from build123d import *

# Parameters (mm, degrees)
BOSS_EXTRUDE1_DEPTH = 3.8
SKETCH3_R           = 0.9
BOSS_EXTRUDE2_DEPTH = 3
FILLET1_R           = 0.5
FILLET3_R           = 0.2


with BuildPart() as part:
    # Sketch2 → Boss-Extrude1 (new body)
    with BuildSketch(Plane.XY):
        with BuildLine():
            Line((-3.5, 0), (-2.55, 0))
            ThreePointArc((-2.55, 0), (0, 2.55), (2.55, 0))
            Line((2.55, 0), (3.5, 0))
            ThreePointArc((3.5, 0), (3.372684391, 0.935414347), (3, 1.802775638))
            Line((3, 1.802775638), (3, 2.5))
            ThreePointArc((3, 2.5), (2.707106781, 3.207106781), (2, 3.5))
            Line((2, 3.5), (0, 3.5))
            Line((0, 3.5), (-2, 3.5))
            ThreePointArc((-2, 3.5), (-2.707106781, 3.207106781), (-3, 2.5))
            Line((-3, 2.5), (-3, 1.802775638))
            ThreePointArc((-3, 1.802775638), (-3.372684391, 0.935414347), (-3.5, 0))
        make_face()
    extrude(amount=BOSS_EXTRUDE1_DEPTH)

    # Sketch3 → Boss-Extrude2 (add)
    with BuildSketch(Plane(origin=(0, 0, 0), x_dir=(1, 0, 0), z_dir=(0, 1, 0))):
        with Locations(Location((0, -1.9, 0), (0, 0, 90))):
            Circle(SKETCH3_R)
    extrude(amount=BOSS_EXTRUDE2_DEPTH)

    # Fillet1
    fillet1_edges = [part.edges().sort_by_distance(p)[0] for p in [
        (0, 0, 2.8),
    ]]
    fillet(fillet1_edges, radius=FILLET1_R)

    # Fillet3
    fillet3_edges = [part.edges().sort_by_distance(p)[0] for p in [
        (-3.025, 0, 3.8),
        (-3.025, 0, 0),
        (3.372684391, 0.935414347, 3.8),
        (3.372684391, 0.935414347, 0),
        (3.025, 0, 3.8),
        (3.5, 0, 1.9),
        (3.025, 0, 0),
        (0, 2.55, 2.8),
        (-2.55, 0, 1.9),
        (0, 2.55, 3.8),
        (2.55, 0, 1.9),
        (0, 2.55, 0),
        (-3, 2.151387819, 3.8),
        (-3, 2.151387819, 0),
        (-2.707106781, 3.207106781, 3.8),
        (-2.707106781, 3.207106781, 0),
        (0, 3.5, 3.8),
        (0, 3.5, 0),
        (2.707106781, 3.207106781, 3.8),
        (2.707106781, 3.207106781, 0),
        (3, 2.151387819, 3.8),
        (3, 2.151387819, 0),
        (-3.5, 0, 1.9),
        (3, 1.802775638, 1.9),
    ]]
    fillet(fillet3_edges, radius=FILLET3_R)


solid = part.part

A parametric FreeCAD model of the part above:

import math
import FreeCAD as App
import Part
import Sketcher
Q = App.Units.Quantity


def edges_at(feature, points):
    """Names of the edges that pass closest to the given points."""
    edges = feature.Shape.Edges
    near = lambda p: min(range(len(edges)), key=lambda i: edges[i].distToShape(Part.Vertex(*p))[0])
    return sorted({f"Edge{near(p) + 1}" for p in points})

doc = App.newDocument("Part")
body = doc.addObject("PartDesign::Body", "Body")

# Sketch on XY plane
sketch1 = body.newObject("Sketcher::SketchObject", "Sketch")
sketch1.AttachmentSupport = (doc.getObject("XY_Plane"), [""])
sketch1.MapMode = "FlatFace"
sketch1.addGeometry([
    Part.LineSegment(App.Vector(-3.5, 0, 0), App.Vector(-2.55, 0, 0)),  # 0
    Part.ArcOfCircle(Part.Circle(App.Vector(0, 0, 0), App.Vector(0, 0, 1), 2.55), math.radians(0), math.radians(180)),  # 1
    Part.LineSegment(App.Vector(2.55, 0, 0), App.Vector(3.5, 0, 0)),  # 2
    Part.ArcOfCircle(Part.Circle(App.Vector(0, 0, 0), App.Vector(0, 0, 1), 3.5), math.radians(0), math.radians(31.002719)),  # 3
    Part.LineSegment(App.Vector(3, 1.802776, 0), App.Vector(3, 2.5, 0)),  # 4
    Part.ArcOfCircle(Part.Circle(App.Vector(2, 2.5, 0), App.Vector(0, 0, 1), 1), math.radians(0), math.radians(90)),  # 5
    Part.LineSegment(App.Vector(2, 3.5, 0), App.Vector(-2, 3.5, 0)),  # 6
    Part.ArcOfCircle(Part.Circle(App.Vector(-2, 2.5, 0), App.Vector(0, 0, 1), 1), math.radians(90), math.radians(180)),  # 7
    Part.LineSegment(App.Vector(-3, 2.5, 0), App.Vector(-3, 1.802776, 0)),  # 8
    Part.ArcOfCircle(Part.Circle(App.Vector(0, 0, 0), App.Vector(0, 0, 1), 3.5), math.radians(148.997281), math.radians(180)),  # 9
], False)
sketch1.addConstraint([
    Sketcher.Constraint("Coincident", 0, 2, 1, 2),
    Sketcher.Constraint("Coincident", 1, 1, 2, 1),
    Sketcher.Constraint("Coincident", 2, 2, 3, 1),
    Sketcher.Constraint("Coincident", 3, 2, 4, 1),
    Sketcher.Constraint("Tangent", 4, 2, 5, 1),
    Sketcher.Constraint("Tangent", 5, 2, 6, 1),
    Sketcher.Constraint("Tangent", 6, 2, 7, 1),
    Sketcher.Constraint("Tangent", 7, 2, 8, 1),
    Sketcher.Constraint("Coincident", 8, 2, 9, 1),
    Sketcher.Constraint("Coincident", 9, 2, 0, 1),
    Sketcher.Constraint("Horizontal", 0),
    Sketcher.Constraint("Horizontal", 2),
    Sketcher.Constraint("Vertical", 4),
    Sketcher.Constraint("Horizontal", 6),
    Sketcher.Constraint("Vertical", 8),
    Sketcher.Constraint("Coincident", 1, 3, -1, 1),
    Sketcher.Constraint("Coincident", 3, 3, -1, 1),
    Sketcher.Constraint("Coincident", 9, 3, -1, 1),
    Sketcher.Constraint("Equal", 5, 7),
    Sketcher.Constraint("Equal", 3, 9),
    Sketcher.Constraint("PointOnObject", 0, 2, -1),
    Sketcher.Constraint("PointOnObject", 1, 1, -1),
    Sketcher.Constraint("Horizontal", 3, 2, 8, 2),
    Sketcher.Constraint("Radius", 5, Q("1 mm")),
    Sketcher.Constraint("Radius", 3, Q("3.5 mm")),
    Sketcher.Constraint("DistanceX", 6, 2, 6, 1, Q("4 mm")),
    Sketcher.Constraint("Radius", 1, Q("2.55 mm")),
    Sketcher.Constraint("DistanceY", -1, 1, 5, 3, Q("2.5 mm")),
])
pad1 = body.newObject("PartDesign::Pad", "Pad")
pad1.Profile = sketch1
pad1.Length = 3.8

# Sketch on XZ plane
sketch2 = body.newObject("Sketcher::SketchObject", "Sketch001")
sketch2.AttachmentSupport = (doc.getObject("XZ_Plane"), [""])
sketch2.MapMode = "FlatFace"
sketch2.addGeometry(Part.Circle(App.Vector(0, 1.9, 0), App.Vector(0, 0, 1), 0.9), False)
sketch2.addConstraint([
    Sketcher.Constraint("PointOnObject", 0, 3, -2),
    Sketcher.Constraint("Diameter", 0, Q("1.8 mm")),
    Sketcher.Constraint("DistanceY", -1, 1, 0, 3, Q("1.9 mm")),
])
pad2 = body.newObject("PartDesign::Pad", "Pad001")
pad2.Profile = sketch2
pad2.Length = 3
pad2.Reversed = True
doc.recompute()

fillet = body.newObject("PartDesign::Fillet", "Fillet")
fillet.Base = (pad2, edges_at(pad2, [(0, 0, 2.8)]))
fillet.Radius = 0.5
doc.recompute()

fillet2 = body.newObject("PartDesign::Fillet", "Fillet001")
fillet2.Base = (fillet, edges_at(fillet, [
    (-3.025, 0, 3.8),
    (-3.025, 0, 0),
    (3.373, 0.935, 3.8),
    (3.373, 0.935, 0),
    (3.025, 0, 3.8),
    (3.5, 0, 1.9),
    (3.025, 0, 0),
    (0, 2.55, 2.8),
    (-2.55, 0, 1.9),
    (0, 2.55, 3.8),
    (2.55, 0, 1.9),
    (0, 2.55, 0),
    (-3, 2.151, 3.8),
    (-3, 2.151, 0),
    (-2.707, 3.207, 3.8),
    (-2.707, 3.207, 0),
    (0, 3.5, 3.8),
    (0, 3.5, 0),
    (2.707, 3.207, 3.8),
    (2.707, 3.207, 0),
    (3, 2.151, 3.8),
    (3, 2.151, 0),
    (-3.5, 0, 1.9),
    (3, 1.803, 1.9),
]))
fillet2.Radius = 0.2

doc.recompute()
